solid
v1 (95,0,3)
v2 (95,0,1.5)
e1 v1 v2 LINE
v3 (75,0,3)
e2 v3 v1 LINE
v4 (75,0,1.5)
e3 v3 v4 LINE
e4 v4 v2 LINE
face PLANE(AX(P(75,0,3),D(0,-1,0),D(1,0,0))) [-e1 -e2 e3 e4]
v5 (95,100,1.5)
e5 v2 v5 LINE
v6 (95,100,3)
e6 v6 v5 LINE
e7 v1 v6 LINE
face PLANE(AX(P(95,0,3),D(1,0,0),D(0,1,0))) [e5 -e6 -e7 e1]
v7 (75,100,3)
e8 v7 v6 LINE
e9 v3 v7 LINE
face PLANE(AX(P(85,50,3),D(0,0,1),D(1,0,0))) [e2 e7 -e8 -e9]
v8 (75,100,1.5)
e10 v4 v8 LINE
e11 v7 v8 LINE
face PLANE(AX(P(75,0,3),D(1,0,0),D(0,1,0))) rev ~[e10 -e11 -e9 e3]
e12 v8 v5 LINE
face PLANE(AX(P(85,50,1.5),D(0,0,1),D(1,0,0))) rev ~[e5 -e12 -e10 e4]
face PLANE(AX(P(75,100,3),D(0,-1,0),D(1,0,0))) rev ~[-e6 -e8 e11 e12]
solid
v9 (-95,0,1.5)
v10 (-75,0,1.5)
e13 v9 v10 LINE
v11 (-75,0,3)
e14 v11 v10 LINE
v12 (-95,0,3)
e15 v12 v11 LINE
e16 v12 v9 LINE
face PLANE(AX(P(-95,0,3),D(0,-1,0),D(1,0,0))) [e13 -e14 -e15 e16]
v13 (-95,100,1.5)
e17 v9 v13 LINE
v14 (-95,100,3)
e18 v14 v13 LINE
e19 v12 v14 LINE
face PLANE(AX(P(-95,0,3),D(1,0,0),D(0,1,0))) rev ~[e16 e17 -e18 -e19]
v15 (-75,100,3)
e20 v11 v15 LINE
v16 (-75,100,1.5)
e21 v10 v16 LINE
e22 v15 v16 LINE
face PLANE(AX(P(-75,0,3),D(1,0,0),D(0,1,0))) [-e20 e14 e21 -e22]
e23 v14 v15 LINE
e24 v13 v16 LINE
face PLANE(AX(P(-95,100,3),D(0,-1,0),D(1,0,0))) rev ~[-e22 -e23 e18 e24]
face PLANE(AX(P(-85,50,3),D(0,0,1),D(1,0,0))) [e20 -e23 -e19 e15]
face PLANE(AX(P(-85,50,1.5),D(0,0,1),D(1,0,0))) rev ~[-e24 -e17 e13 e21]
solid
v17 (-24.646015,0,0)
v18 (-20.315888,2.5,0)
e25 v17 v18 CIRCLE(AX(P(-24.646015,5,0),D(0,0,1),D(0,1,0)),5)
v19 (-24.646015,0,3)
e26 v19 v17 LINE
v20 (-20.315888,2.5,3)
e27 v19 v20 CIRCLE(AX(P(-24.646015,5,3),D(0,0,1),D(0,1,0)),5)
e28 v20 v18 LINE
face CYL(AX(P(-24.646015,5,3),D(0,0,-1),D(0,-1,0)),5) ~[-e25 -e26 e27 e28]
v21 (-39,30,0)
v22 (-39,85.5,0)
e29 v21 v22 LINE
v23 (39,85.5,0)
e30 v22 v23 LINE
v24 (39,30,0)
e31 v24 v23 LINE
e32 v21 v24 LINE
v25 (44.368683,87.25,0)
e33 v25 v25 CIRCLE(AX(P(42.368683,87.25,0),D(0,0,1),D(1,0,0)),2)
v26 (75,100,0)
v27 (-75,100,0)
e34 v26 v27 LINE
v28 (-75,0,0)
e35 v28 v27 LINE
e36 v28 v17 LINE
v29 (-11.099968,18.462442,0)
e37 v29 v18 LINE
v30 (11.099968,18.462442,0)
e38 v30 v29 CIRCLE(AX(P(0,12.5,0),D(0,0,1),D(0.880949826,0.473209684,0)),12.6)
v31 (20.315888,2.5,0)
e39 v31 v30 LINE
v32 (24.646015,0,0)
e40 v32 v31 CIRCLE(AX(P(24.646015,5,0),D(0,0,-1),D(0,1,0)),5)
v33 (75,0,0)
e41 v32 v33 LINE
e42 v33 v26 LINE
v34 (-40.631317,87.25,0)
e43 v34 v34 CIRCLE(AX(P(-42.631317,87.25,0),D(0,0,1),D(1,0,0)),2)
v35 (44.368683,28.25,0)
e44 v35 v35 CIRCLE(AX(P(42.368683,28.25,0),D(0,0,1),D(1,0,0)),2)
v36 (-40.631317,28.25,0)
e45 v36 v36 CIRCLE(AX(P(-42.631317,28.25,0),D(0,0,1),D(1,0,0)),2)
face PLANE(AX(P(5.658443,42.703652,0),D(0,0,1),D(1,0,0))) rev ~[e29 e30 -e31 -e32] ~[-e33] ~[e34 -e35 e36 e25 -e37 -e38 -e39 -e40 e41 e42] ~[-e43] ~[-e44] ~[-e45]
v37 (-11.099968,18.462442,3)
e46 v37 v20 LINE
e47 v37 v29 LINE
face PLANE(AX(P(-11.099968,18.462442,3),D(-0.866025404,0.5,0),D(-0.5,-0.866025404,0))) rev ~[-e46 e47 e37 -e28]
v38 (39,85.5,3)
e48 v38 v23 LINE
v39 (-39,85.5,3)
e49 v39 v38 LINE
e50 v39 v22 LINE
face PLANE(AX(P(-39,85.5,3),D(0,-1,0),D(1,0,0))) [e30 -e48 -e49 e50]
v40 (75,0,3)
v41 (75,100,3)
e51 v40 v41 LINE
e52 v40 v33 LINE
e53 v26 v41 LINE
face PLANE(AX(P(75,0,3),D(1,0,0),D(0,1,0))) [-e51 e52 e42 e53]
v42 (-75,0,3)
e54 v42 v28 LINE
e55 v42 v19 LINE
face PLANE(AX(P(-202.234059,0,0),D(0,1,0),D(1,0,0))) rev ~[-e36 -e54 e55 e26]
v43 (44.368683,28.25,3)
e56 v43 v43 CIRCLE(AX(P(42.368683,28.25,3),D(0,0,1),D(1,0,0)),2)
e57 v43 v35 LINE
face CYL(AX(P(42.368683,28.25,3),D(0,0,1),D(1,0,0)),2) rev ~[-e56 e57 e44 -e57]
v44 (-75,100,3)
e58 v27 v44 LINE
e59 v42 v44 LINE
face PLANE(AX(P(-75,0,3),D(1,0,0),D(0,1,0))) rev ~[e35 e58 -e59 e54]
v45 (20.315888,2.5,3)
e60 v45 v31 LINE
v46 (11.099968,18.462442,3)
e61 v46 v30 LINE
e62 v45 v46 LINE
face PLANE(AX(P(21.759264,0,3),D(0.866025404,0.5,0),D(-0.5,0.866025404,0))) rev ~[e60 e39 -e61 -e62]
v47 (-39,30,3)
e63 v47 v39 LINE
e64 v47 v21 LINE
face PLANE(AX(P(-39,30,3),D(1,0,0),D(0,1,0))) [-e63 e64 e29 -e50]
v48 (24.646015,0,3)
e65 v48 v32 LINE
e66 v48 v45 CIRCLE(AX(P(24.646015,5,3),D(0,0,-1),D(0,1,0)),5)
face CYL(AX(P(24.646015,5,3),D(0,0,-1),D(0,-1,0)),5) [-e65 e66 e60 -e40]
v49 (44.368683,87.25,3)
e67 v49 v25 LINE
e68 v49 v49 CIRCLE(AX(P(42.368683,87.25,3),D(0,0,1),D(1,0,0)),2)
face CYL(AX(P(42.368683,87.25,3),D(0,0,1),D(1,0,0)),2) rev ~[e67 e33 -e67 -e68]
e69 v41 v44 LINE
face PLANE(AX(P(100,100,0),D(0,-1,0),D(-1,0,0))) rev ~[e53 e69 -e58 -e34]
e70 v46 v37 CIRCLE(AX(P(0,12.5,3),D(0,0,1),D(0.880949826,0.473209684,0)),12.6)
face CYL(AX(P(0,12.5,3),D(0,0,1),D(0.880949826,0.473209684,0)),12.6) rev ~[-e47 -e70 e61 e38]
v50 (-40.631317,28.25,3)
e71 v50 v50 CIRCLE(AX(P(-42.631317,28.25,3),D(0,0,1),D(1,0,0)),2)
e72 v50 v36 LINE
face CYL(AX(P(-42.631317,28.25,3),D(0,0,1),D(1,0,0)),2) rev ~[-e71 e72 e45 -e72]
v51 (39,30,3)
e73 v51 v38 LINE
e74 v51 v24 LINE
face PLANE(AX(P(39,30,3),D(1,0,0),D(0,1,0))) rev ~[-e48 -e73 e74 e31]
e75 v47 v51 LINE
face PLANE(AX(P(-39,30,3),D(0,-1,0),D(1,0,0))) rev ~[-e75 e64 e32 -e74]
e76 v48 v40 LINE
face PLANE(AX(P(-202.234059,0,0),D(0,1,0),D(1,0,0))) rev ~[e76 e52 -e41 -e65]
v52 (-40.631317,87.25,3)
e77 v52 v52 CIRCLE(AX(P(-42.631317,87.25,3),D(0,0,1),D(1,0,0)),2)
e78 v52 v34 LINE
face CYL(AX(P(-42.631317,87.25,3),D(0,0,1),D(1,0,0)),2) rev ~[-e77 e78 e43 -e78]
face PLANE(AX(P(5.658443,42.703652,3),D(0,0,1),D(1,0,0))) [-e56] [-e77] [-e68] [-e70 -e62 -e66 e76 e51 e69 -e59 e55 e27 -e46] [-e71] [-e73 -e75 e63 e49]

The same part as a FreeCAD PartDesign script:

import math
import FreeCAD as App
import Part
import Sketcher
from FreeCAD import Vector
Q = App.Units.Quantity


def edges_at(feature, points):
    """Names of the edges that pass closest to the given points."""
    edges = feature.Shape.Edges
    near = lambda p: min(range(len(edges)), key=lambda i: edges[i].distToShape(Part.Vertex(*p))[0])
    return sorted({f"Edge{near(p) + 1}" for p in points})

doc = App.newDocument("Part")
body = doc.addObject("PartDesign::Body", "Body")

# Sketch on XY plane
sketch1 = doc.addObject("Sketcher::SketchObject", "Sketch")
body.addObject(sketch1)
sketch1.AttachmentSupport = (doc.XY_Plane, [""])
sketch1.MapMode = "FlatFace"
sketch1.addGeometry([
    Part.LineSegment(Vector(-198, 21, 0), Vector(-202, 0, 0)),  # 0
    Part.LineSegment(Vector(-202, 0, 0), Vector(216, 0, 0)),  # 1
    Part.LineSegment(Vector(216, 0, 0), Vector(209, 21, 0)),  # 2
    Part.ArcOfCircle(Part.Circle(Vector(100, -15, 0), Vector(0, 0, 1), 115), math.radians(18), math.radians(90)),  # 3
    Part.LineSegment(Vector(100, 100, 0), Vector(-100, 100, 0)),  # 4
    Part.ArcOfCircle(Part.Circle(Vector(-100, 0, 0), Vector(0, 0, 1), 100), math.radians(90), math.radians(168)),  # 5
], False)
sketch1.addConstraint([
    Sketcher.Constraint("Coincident", 0, 2, 1, 1),
    Sketcher.Constraint("Coincident", 1, 2, 2, 1),
    Sketcher.Constraint("Tangent", 2, 2, 3, 1),
    Sketcher.Constraint("Tangent", 3, 2, 4, 1),
    Sketcher.Constraint("Tangent", 4, 2, 5, 1),
    Sketcher.Constraint("Tangent", 5, 2, 0, 1),
    Sketcher.Constraint("Horizontal", 1),
    Sketcher.Constraint("Horizontal", 4),
    Sketcher.Constraint("PointOnObject", 5, 3, -1),
    Sketcher.Constraint("PointOnObject", 0, 2, -1),
    Sketcher.Constraint("Horizontal", 2, 2, 5, 2),
    Sketcher.Constraint("Radius", 3, 115.0),
    Sketcher.Constraint("Radius", 5, 100.0),
    Sketcher.Constraint("DistanceX", 4, 2, 4, 1, 200.0),
    Sketcher.Constraint("Angle", 0, Q("-102 deg")),
    Sketcher.Constraint("DistanceX", -1, 1, 3, 3, 100.0),
])
pad1 = doc.addObject("PartDesign::Pad", "Pad")
body.addObject(pad1)
pad1.Profile = sketch1
pad1.Length = 3

# Sketch on XY plane
sketch2 = doc.addObject("Sketcher::SketchObject", "Sketch001")
body.addObject(sketch2)
sketch2.AttachmentSupport = (doc.XY_Plane, [""])
sketch2.MapMode = "FlatFace"
sketch2.AttachmentOffset = App.Placement(Vector(0, 0, 3), App.Rotation())
sketch2.addGeometry([
    Part.ArcOfCircle(Part.Circle(Vector(0, 12.5, 0), Vector(0, 0, 1), 12.6), math.radians(28), math.radians(152)),  # 0
    Part.LineSegment(Vector(-11.1, 18.5, 0), Vector(-21.8, 0, 0)),  # 1
    Part.LineSegment(Vector(-21.8, 0, 0), Vector(-1.6, 0, 0)),  # 2
    Part.ArcOfCircle(Part.Circle(Vector(0, 12.5, 0), Vector(0, 0, 1), 12.6), math.radians(-97.22), math.radians(-82.78)),  # 3
    Part.LineSegment(Vector(1.6, 0, 0), Vector(21.8, 0, 0)),  # 4
    Part.LineSegment(Vector(21.8, 0, 0), Vector(11.1, 18.5, 0)),  # 5
], False)
sketch2.addConstraint([
    Sketcher.Constraint("Coincident", 0, 2, 1, 1),
    Sketcher.Constraint("Coincident", 1, 2, 2, 1),
    Sketcher.Constraint("Coincident", 2, 2, 3, 1),
    Sketcher.Constraint("Coincident", 3, 2, 4, 1),
    Sketcher.Constraint("Coincident", 4, 2, 5, 1),
    Sketcher.Constraint("Coincident", 5, 2, 0, 1),
    Sketcher.Constraint("Horizontal", 2),
    Sketcher.Constraint("Horizontal", 4),
    Sketcher.Constraint("Coincident", 3, 3, 0, 3),
    Sketcher.Constraint("Equal", 0, 3),
    Sketcher.Constraint("Symmetric", 2, 2, 3, 2, -1, 1),
    Sketcher.Constraint("Symmetric", 1, 2, 4, 2, -2),
    Sketcher.Constraint("Horizontal", 0, 2, 5, 2),
    Sketcher.Constraint("Radius", 0, 12.6),
    Sketcher.Constraint("Angle", 1, Q("-120 deg")),
    Sketcher.Constraint("DistanceY", -1, 1, 0, 3, 12.5),
    Sketcher.Constraint("Distance", 1, 21.318592),
])
pocket1 = doc.addObject("PartDesign::Pocket", "Pocket")
body.addObject(pocket1)
pocket1.Profile = sketch2
pocket1.Length = 25
doc.recompute()

fillet = doc.addObject("PartDesign::Fillet", "Fillet")
body.addObject(fillet)
fillet.Base = (pocket1, edges_at(pocket1, [(-21.759, 0, 1.5), (21.759, 0, 1.5)]))
fillet.Radius = 5

# Sketch on XY plane
sketch3 = doc.addObject("Sketcher::SketchObject", "Sketch002")
body.addObject(sketch3)
sketch3.AttachmentSupport = (doc.XY_Plane, [""])
sketch3.MapMode = "FlatFace"
sketch3.AttachmentOffset = App.Placement(Vector(0, 0, 3), App.Rotation())
sketch3.addGeometry([
    Part.LineSegment(Vector(-145, 38.9, 0), Vector(-152.8, 34.5, 0)),  # 0
    Part.LineSegment(Vector(-152.8, 34.5, 0), Vector(-152.8, 25.5, 0)),  # 1
    Part.LineSegment(Vector(-152.8, 25.5, 0), Vector(-145, 21.1, 0)),  # 2
    Part.LineSegment(Vector(-145, 21.1, 0), Vector(-137.2, 25.5, 0)),  # 3
    Part.LineSegment(Vector(-137.2, 25.5, 0), Vector(-137.2, 34.5, 0)),  # 4
    Part.LineSegment(Vector(-137.2, 34.5, 0), Vector(-145, 38.9, 0)),  # 5
    Part.Circle(Vector(-115, 30, 0), Vector(0, 0, 1), 11.2),  # 6
    Part.Circle(Vector(-115, 60, 0), Vector(0, 0, 1), 2.6),  # 7
    Part.Circle(Vector(-145, 60, 0), Vector(0, 0, 1), 2.6),  # 8
], False)
sketch3.addConstraint([
    Sketcher.Constraint("Coincident", 0, 2, 1, 1),
    Sketcher.Constraint("Coincident", 1, 2, 2, 1),
    Sketcher.Constraint("Coincident", 2, 2, 3, 1),
    Sketcher.Constraint("Coincident", 3, 2, 4, 1),
    Sketcher.Constraint("Coincident", 4, 2, 5, 1),
    Sketcher.Constraint("Coincident", 5, 2, 0, 1),
    Sketcher.Constraint("Vertical", 1),
    Sketcher.Constraint("Vertical", 4),
    Sketcher.Constraint("Equal", 7, 8),
    Sketcher.Constraint("Parallel", 0, 3),
    Sketcher.Constraint("Parallel", 2, 5),
    Sketcher.Constraint("Horizontal", 7, 3, 8, 3),
    Sketcher.Constraint("Horizontal", 1, 2, 3, 2),
    Sketcher.Constraint("Horizontal", 0, 2, 4, 2),
    Sketcher.Constraint("Vertical", 6, 3, 7, 3),
    Sketcher.Constraint("Vertical", 8, 3, 2, 2),
    Sketcher.Constraint("Vertical", 2, 2, 5, 2),
    Sketcher.Constraint("Diameter", 6, 22.3),
    Sketcher.Constraint("Diameter", 7, 5.3),
    Sketcher.Constraint("Angle", 0, Q("-150 deg")),
    Sketcher.Constraint("DistanceX", 6, 3, -1, 1, 115.0),
    Sketcher.Constraint("DistanceY", -1, 1, 6, 3, 30.0),
    Sketcher.Constraint("DistanceY", -1, 1, 7, 3, 60.0),
    Sketcher.Constraint("DistanceX", 8, 3, -1, 1, 145.0),
    Sketcher.Constraint("DistanceX", 1, 2, 3, 2, 15.5),
    Sketcher.Constraint("DistanceY", 1, 2, 1, 1, 8.948929),
    Sketcher.Constraint("DistanceY", -1, 1, 2, 2, 21.051071),
])
pocket2 = doc.addObject("PartDesign::Pocket", "Pocket001")
body.addObject(pocket2)
pocket2.Profile = sketch3
pocket2.Length = 25

# Sketch on XY plane
sketch4 = doc.addObject("Sketcher::SketchObject", "Sketch003")
body.addObject(sketch4)
sketch4.AttachmentSupport = (doc.XY_Plane, [""])
sketch4.MapMode = "FlatFace"
sketch4.AttachmentOffset = App.Placement(Vector(0, 0, 3), App.Rotation())
sketch4.addGeometry([
    Part.LineSegment(Vector(-39, 85.5, 0), Vector(-39, 30, 0)),  # 0
    Part.LineSegment(Vector(-39, 30, 0), Vector(39, 30, 0)),  # 1
    Part.LineSegment(Vector(39, 30, 0), Vector(39, 85.5, 0)),  # 2
    Part.LineSegment(Vector(39, 85.5, 0), Vector(-39, 85.5, 0)),  # 3
    Part.Circle(Vector(-42.6, 28.2, 0), Vector(0, 0, 1), 2),  # 4
    Part.Circle(Vector(-42.6, 87.2, 0), Vector(0, 0, 1), 2),  # 5
    Part.Circle(Vector(42.4, 87.2, 0), Vector(0, 0, 1), 2),  # 6
    Part.Circle(Vector(42.4, 28.2, 0), Vector(0, 0, 1), 2),  # 7
], False)
sketch4.addConstraint([
    Sketcher.Constraint("Coincident", 0, 2, 1, 1),
    Sketcher.Constraint("Coincident", 1, 2, 2, 1),
    Sketcher.Constraint("Coincident", 2, 2, 3, 1),
    Sketcher.Constraint("Coincident", 3, 2, 0, 1),
    Sketcher.Constraint("Vertical", 0),
    Sketcher.Constraint("Horizontal", 1),
    Sketcher.Constraint("Vertical", 2),
    Sketcher.Constraint("Horizontal", 3),
    Sketcher.Constraint("Equal", 4, 5),
    Sketcher.Constraint("Equal", 5, 6),
    Sketcher.Constraint("Equal", 6, 7),
    Sketcher.Constraint("Horizontal", 5, 3, 6, 3),
    Sketcher.Constraint("Horizontal", 4, 3, 7, 3),
    Sketcher.Constraint("Vertical", 4, 3, 5, 3),
    Sketcher.Constraint("Vertical", 6, 3, 7, 3),
    Sketcher.Constraint("Diameter", 4, 4.0),
    Sketcher.Constraint("DistanceX", 1, 1, 1, 2, 78.0),
    Sketcher.Constraint("DistanceY", 0, 2, 0, 1, 55.5),
    Sketcher.Constraint("DistanceX", 0, 2, -1, 1, 39.0),
    Sketcher.Constraint("DistanceY", -1, 1, 0, 2, 30.0),
    Sketcher.Constraint("DistanceY", 4, 3, 5, 3, 59.0),
    Sketcher.Constraint("DistanceX", 5, 3, 6, 3, 85.0),
    Sketcher.Constraint("DistanceY", -1, 1, 4, 3, 28.25),
    Sketcher.Constraint("DistanceX", 4, 3, -1, 1, 42.631317),
])
pocket3 = doc.addObject("PartDesign::Pocket", "Pocket002")
body.addObject(pocket3)
pocket3.Profile = sketch4
pocket3.Length = 25

# Sketch on XY plane
sketch5 = doc.addObject("Sketcher::SketchObject", "Sketch004")
body.addObject(sketch5)
sketch5.AttachmentSupport = (doc.XY_Plane, [""])
sketch5.MapMode = "FlatFace"
sketch5.AttachmentOffset = App.Placement(Vector(0, 0, 3), App.Rotation())
sketch5.addGeometry(Part.Circle(Vector(115, 30, 0), Vector(0, 0, 1), 8), False)
sketch5.addConstraint([
    Sketcher.Constraint("Diameter", 0, 16.3),
    Sketcher.Constraint("DistanceX", -1, 1, 0, 3, 115.0),
    Sketcher.Constraint("DistanceY", -1, 1, 0, 3, 30.0),
])
pocket4 = doc.addObject("PartDesign::Pocket", "Pocket003")
body.addObject(pocket4)
pocket4.Profile = sketch5
pocket4.Length = 25

# Sketch on XY plane
sketch6 = doc.addObject("Sketcher::SketchObject", "Sketch005")
body.addObject(sketch6)
sketch6.AttachmentSupport = (doc.XY_Plane, [""])
sketch6.MapMode = "FlatFace"
sketch6.AttachmentOffset = App.Placement(Vector(0, 0, 3), App.Rotation())
sketch6.addGeometry([
    Part.LineSegment(Vector(-214, 109, 0), Vector(-214, 0, 0)),  # 0
    Part.LineSegment(Vector(-214, 0, 0), Vector(-75, 0, 0)),  # 1
    Part.LineSegment(Vector(-75, 0, 0), Vector(-75, 109, 0)),  # 2
    Part.LineSegment(Vector(-75, 109, 0), Vector(-214, 109, 0)),  # 3
    Part.LineSegment(Vector(75, 110, 0), Vector(75, 0, 0)),  # 4
    Part.LineSegment(Vector(75, 0, 0), Vector(225, 0, 0)),  # 5
    Part.LineSegment(Vector(225, 0, 0), Vector(225, 110, 0)),  # 6
    Part.LineSegment(Vector(225, 110, 0), Vector(75, 110, 0)),  # 7
], False)
sketch6.addConstraint([
    Sketcher.Constraint("Coincident", 0, 2, 1, 1),
    Sketcher.Constraint("Coincident", 1, 2, 2, 1),
    Sketcher.Constraint("Coincident", 2, 2, 3, 1),
    Sketcher.Constraint("Coincident", 3, 2, 0, 1),
    Sketcher.Constraint("Coincident", 4, 2, 5, 1),
    Sketcher.Constraint("Coincident", 5, 2, 6, 1),
    Sketcher.Constraint("Coincident", 6, 2, 7, 1),
    Sketcher.Constraint("Coincident", 7, 2, 4, 1),
    Sketcher.Constraint("Vertical", 0),
    Sketcher.Constraint("Horizontal", 1),
    Sketcher.Constraint("Vertical", 2),
    Sketcher.Constraint("Horizontal", 3),
    Sketcher.Constraint("Vertical", 4),
    Sketcher.Constraint("Horizontal", 5),
    Sketcher.Constraint("Vertical", 6),
    Sketcher.Constraint("Horizontal", 7),
    Sketcher.Constraint("Symmetric", 1, 2, 4, 2, -1, 1),
    Sketcher.Constraint("PointOnObject", 0, 2, -1),
    Sketcher.Constraint("DistanceX", 1, 2, -1, 1, 75.0),
    Sketcher.Constraint("DistanceY", 0, 2, 0, 1, 109.387241),
    Sketcher.Constraint("DistanceY", 4, 2, 4, 1, 110.101651),
    Sketcher.Constraint("DistanceX", 1, 1, 1, 2, 138.952904),
    Sketcher.Constraint("DistanceX", 5, 1, 5, 2, 150.409727),
])
pocket5 = doc.addObject("PartDesign::Pocket", "Pocket004")
body.addObject(pocket5)
pocket5.Profile = sketch6
pocket5.Length = 25
body2 = doc.addObject("PartDesign::Body", "Body001")

# Sketch on XY plane
sketch7 = doc.addObject("Sketcher::SketchObject", "Sketch006")
body2.addObject(sketch7)
sketch7.AttachmentSupport = (doc.getObject("XY_Plane001"), [""])
sketch7.MapMode = "FlatFace"
sketch7.AttachmentOffset = App.Placement(Vector(0, 0, 3), App.Rotation())
sketch7.addGeometry([
    Part.LineSegment(Vector(-95, 100, 0), Vector(-95, 0, 0)),
    Part.LineSegment(Vector(-95, 0, 0), Vector(-75, 0, 0)),
    Part.LineSegment(Vector(-75, 0, 0), Vector(-75, 100, 0)),
    Part.LineSegment(Vector(-75, 100, 0), Vector(-95, 100, 0)),
], False)
sketch7.addConstraint([
    Sketcher.Constraint("Coincident", 0, 2, 1, 1),
    Sketcher.Constraint("Coincident", 1, 2, 2, 1),
    Sketcher.Constraint("Coincident", 2, 2, 3, 1),
    Sketcher.Constraint("Coincident", 3, 2, 0, 1),
    Sketcher.Constraint("Vertical", 0),
    Sketcher.Constraint("Horizontal", 1),
    Sketcher.Constraint("Vertical", 2),
    Sketcher.Constraint("Horizontal", 3),
    Sketcher.Constraint("PointOnObject", 0, 2, -1),
    Sketcher.Constraint("DistanceX", 1, 1, 1, 2, 20.0),
    Sketcher.Constraint("DistanceY", 0, 2, 0, 1, 100.0),
    Sketcher.Constraint("DistanceX", 0, 2, -1, 1, 95.0),
])
pad2 = doc.addObject("PartDesign::Pad", "Pad001")
body2.addObject(pad2)
pad2.Profile = sketch7
pad2.Length = 1.5
pad2.Reversed = True
body3 = doc.addObject("PartDesign::Body", "Body002")

# Sketch on XY plane
sketch8 = doc.addObject("Sketcher::SketchObject", "Sketch007")
body3.addObject(sketch8)
sketch8.AttachmentSupport = (doc.getObject("XY_Plane002"), [""])
sketch8.MapMode = "FlatFace"
sketch8.AttachmentOffset = App.Placement(Vector(0, 0, 3), App.Rotation())
sketch8.addGeometry([
    Part.LineSegment(Vector(75, 100, 0), Vector(75, 0, 0)),
    Part.LineSegment(Vector(75, 0, 0), Vector(95, 0, 0)),
    Part.LineSegment(Vector(95, 0, 0), Vector(95, 100, 0)),
    Part.LineSegment(Vector(95, 100, 0), Vector(75, 100, 0)),
], False)
sketch8.addConstraint([
    Sketcher.Constraint("Coincident", 0, 2, 1, 1),
    Sketcher.Constraint("Coincident", 1, 2, 2, 1),
    Sketcher.Constraint("Coincident", 2, 2, 3, 1),
    Sketcher.Constraint("Coincident", 3, 2, 0, 1),
    Sketcher.Constraint("Vertical", 0),
    Sketcher.Constraint("Horizontal", 1),
    Sketcher.Constraint("Vertical", 2),
    Sketcher.Constraint("Horizontal", 3),
    Sketcher.Constraint("PointOnObject", 0, 2, -1),
    Sketcher.Constraint("DistanceX", 1, 1, 1, 2, 20.0),
    Sketcher.Constraint("DistanceY", 0, 2, 0, 1, 100.0),
    Sketcher.Constraint("DistanceX", -1, 1, 0, 2, 75.0),
])
pad3 = doc.addObject("PartDesign::Pad", "Pad002")
body3.addObject(pad3)
pad3.Profile = sketch8
pad3.Length = 1.5
pad3.Reversed = True

doc.recompute()
